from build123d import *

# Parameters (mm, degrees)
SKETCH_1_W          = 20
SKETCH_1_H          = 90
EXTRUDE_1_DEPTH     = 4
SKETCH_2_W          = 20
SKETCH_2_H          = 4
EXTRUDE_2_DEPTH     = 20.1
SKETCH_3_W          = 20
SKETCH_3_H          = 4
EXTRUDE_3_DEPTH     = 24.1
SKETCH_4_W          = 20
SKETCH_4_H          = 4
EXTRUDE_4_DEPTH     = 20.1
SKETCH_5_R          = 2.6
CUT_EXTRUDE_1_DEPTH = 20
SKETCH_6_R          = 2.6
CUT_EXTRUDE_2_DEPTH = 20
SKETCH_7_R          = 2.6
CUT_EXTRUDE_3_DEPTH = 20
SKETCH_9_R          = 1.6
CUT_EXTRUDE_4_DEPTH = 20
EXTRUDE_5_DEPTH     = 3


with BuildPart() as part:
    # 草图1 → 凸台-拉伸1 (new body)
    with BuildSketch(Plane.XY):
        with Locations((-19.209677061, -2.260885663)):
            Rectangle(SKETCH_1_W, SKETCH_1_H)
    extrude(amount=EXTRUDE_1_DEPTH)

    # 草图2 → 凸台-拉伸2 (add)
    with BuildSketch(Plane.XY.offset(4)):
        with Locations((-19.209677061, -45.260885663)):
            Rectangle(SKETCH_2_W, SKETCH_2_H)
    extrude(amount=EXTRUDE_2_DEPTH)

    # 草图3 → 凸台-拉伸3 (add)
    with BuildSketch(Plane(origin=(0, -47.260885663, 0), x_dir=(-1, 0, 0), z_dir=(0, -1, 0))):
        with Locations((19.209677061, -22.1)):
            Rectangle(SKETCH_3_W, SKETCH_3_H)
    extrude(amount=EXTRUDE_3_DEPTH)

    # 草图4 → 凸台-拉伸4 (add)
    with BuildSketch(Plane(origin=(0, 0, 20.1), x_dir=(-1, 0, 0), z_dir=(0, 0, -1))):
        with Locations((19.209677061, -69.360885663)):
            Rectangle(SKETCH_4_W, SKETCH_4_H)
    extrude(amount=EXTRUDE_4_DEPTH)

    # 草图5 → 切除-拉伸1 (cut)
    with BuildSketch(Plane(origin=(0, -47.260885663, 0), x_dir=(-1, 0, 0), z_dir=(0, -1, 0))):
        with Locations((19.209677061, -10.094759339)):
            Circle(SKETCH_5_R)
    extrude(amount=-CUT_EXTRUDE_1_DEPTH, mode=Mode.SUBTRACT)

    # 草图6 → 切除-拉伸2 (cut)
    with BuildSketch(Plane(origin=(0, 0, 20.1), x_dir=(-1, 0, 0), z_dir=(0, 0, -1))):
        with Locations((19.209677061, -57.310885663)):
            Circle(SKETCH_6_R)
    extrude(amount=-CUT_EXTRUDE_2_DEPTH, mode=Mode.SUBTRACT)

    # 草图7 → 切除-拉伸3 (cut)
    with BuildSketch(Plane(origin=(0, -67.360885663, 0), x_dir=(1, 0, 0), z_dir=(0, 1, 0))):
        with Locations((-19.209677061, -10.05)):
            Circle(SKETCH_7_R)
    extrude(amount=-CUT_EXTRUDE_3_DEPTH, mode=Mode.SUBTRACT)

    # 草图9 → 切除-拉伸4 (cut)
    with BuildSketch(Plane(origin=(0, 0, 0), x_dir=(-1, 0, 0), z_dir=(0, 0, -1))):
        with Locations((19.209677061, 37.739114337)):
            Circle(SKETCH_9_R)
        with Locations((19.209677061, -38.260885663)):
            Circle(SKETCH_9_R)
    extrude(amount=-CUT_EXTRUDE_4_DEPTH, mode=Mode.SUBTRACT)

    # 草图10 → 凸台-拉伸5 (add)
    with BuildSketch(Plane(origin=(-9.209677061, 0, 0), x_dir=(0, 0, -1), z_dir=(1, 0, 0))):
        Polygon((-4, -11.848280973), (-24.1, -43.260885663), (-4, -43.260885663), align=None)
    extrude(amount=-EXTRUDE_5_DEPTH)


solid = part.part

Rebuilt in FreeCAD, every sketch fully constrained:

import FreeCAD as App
import Part
import Sketcher
Q = App.Units.Quantity


def add_polygon(sketch, points):
    """Adds a closed chain of lines whose ends are joined by coincident constraints."""
    first, n = sketch.GeometryCount, len(points)
    for a, b in zip(points, points[1:] + points[:1]):
        sketch.addGeometry(Part.LineSegment(App.Vector(*a, 0), App.Vector(*b, 0)), False)
    for i in range(n):
        sketch.addConstraint(Sketcher.Constraint("Coincident", first + i, 2, first + (i + 1) % n, 1))

doc = App.newDocument("Part")
params = doc.addObject("Spreadsheet::Sheet", "Params")
for row, (alias, value) in enumerate([
    ("sketch1_width", "20 mm"),
    ("sketch1_height", "90 mm"),
    ("pad1_length", "4 mm"),
    ("sketch2_width", "20 mm"),
    ("sketch2_height", "4 mm"),
    ("pad2_length", "20.1 mm"),
    ("sketch3_width", "20 mm"),
    ("sketch3_height", "4 mm"),
    ("pad3_length", "24.1 mm"),
    ("sketch4_width", "20 mm"),
    ("sketch4_height", "4 mm"),
    ("pad4_length", "20.1 mm"),
    ("sketch5_diameter", "5.2 mm"),
    ("pocket1_length", "20 mm"),
    ("sketch6_diameter", "5.2 mm"),
    ("pocket2_length", "20 mm"),
    ("sketch7_diameter", "5.2 mm"),
    ("pocket3_length", "20 mm"),
    ("sketch8_diameter", "3.2 mm"),
    ("pocket4_length", "20 mm"),
    ("sketch9_height", "20.1 mm"),
    ("pad5_length", "3 mm"),
], start=1):
    params.set(f"A{row}", alias)
    params.set(f"B{row}", "=" + value)
    params.setAlias(f"B{row}", alias)

body = doc.addObject("PartDesign::Body", "Body")

sketch1 = body.newObject("Sketcher::SketchObject", "Sketch")
sketch1.AttachmentSupport = (doc.getObject("XY_Plane"), [""])
sketch1.MapMode = "FlatFace"
add_polygon(sketch1, [(-29.209677, 42.739114), (-29.209677, -47.260886), (-9.209677, -47.260886), (-9.209677, 42.739114)])
sketch1.addConstraint(Sketcher.Constraint("Vertical", 0))
sketch1.addConstraint(Sketcher.Constraint("Horizontal", 1))
sketch1.addConstraint(Sketcher.Constraint("Vertical", 2))
sketch1.addConstraint(Sketcher.Constraint("Horizontal", 3))
sketch1.addConstraint(Sketcher.Constraint("DistanceX", 1, 1, 1, 2, Q("20 mm")))
sketch1.addConstraint(Sketcher.Constraint("DistanceY", 0, 2, 0, 1, Q("90 mm")))
sketch1.addConstraint(Sketcher.Constraint("DistanceX", 0, 2, -1, 1, Q("29.209677 mm")))
sketch1.addConstraint(Sketcher.Constraint("DistanceY", 0, 2, -1, 1, Q("47.260886 mm")))
sketch1.setExpression("Constraints[8]", "Params.sketch1_width")
sketch1.setExpression("Constraints[9]", "Params.sketch1_height")
pad1 = body.newObject("PartDesign::Pad", "Pad")
pad1.Profile = sketch1
pad1.setExpression("Length", "Params.pad1_length")

sketch2 = body.newObject("Sketcher::SketchObject", "Sketch001")
sketch2.AttachmentSupport = (doc.getObject("XY_Plane"), [""])
sketch2.MapMode = "FlatFace"
sketch2.AttachmentOffset = App.Placement(App.Vector(0, 0, 4), App.Rotation())
add_polygon(sketch2, [(-29.209677, -43.260886), (-29.209677, -47.260886), (-9.209677, -47.260886), (-9.209677, -43.260886)])
sketch2.addConstraint(Sketcher.Constraint("Vertical", 0))
sketch2.addConstraint(Sketcher.Constraint("Horizontal", 1))
sketch2.addConstraint(Sketcher.Constraint("Vertical", 2))
sketch2.addConstraint(Sketcher.Constraint("Horizontal", 3))
sketch2.addConstraint(Sketcher.Constraint("DistanceX", 1, 1, 1, 2, Q("20 mm")))
sketch2.addConstraint(Sketcher.Constraint("DistanceY", 0, 2, 0, 1, Q("4 mm")))
sketch2.addConstraint(Sketcher.Constraint("DistanceX", 0, 2, -1, 1, Q("29.209677 mm")))
sketch2.addConstraint(Sketcher.Constraint("DistanceY", 0, 2, -1, 1, Q("47.260886 mm")))
sketch2.setExpression("Constraints[8]", "Params.sketch2_width")
sketch2.setExpression("Constraints[9]", "Params.sketch2_height")
pad2 = body.newObject("PartDesign::Pad", "Pad001")
pad2.Profile = sketch2
pad2.setExpression("Length", "Params.pad2_length")

sketch3 = body.newObject("Sketcher::SketchObject", "Sketch002")
sketch3.AttachmentSupport = (doc.getObject("XZ_Plane"), [""])
sketch3.MapMode = "FlatFace"
sketch3.AttachmentOffset = App.Placement(App.Vector(0, 0, 47.260886), App.Rotation())
add_polygon(sketch3, [(-9.209677, 20.1), (-9.209677, 24.1), (-29.209677, 24.1), (-29.209677, 20.1)])
sketch3.addConstraint(Sketcher.Constraint("Vertical", 0))
sketch3.addConstraint(Sketcher.Constraint("Horizontal", 1))
sketch3.addConstraint(Sketcher.Constraint("Vertical", 2))
sketch3.addConstraint(Sketcher.Constraint("Horizontal", 3))
sketch3.addConstraint(Sketcher.Constraint("DistanceX", 1, 2, 1, 1, Q("20 mm")))
sketch3.addConstraint(Sketcher.Constraint("DistanceY", 0, 1, 0, 2, Q("4 mm")))
sketch3.addConstraint(Sketcher.Constraint("DistanceY", -1, 1, 0, 2, Q("24.1 mm")))
sketch3.addConstraint(Sketcher.Constraint("DistanceX", 0, 2, -1, 1, Q("9.209677 mm")))
sketch3.setExpression("Constraints[8]", "Params.sketch3_width")
sketch3.setExpression("Constraints[9]", "Params.sketch3_height")
pad3 = body.newObject("PartDesign::Pad", "Pad002")
pad3.Profile = sketch3
pad3.setExpression("Length", "Params.pad3_length")

sketch4 = body.newObject("Sketcher::SketchObject", "Sketch003")
sketch4.AttachmentSupport = (doc.getObject("XY_Plane"), [""])
sketch4.MapMode = "FlatFace"
sketch4.AttachmentOffset = App.Placement(App.Vector(0, 0, 20.1), App.Rotation())
add_polygon(sketch4, [(-9.209677, -67.360886), (-9.209677, -71.360886), (-29.209677, -71.360886), (-29.209677, -67.360886)])
sketch4.addConstraint(Sketcher.Constraint("Vertical", 0))
sketch4.addConstraint(Sketcher.Constraint("Horizontal", 1))
sketch4.addConstraint(Sketcher.Constraint("Vertical", 2))
sketch4.addConstraint(Sketcher.Constraint("Horizontal", 3))
sketch4.addConstraint(Sketcher.Constraint("DistanceX", 1, 2, 1, 1, Q("20 mm")))
sketch4.addConstraint(Sketcher.Constraint("DistanceY", 0, 2, 0, 1, Q("4 mm")))
sketch4.addConstraint(Sketcher.Constraint("DistanceX", 0, 2, -1, 1, Q("9.209677 mm")))
sketch4.addConstraint(Sketcher.Constraint("DistanceY", 0, 2, -1, 1, Q("71.360886 mm")))
sketch4.setExpression("Constraints[8]", "Params.sketch4_width")
sketch4.setExpression("Constraints[9]", "Params.sketch4_height")
pad4 = body.newObject("PartDesign::Pad", "Pad003")
pad4.Profile = sketch4
pad4.setExpression("Length", "Params.pad4_length")
pad4.Reversed = True

sketch5 = body.newObject("Sketcher::SketchObject", "Sketch004")
sketch5.AttachmentSupport = (doc.getObject("XZ_Plane"), [""])
sketch5.MapMode = "FlatFace"
sketch5.AttachmentOffset = App.Placement(App.Vector(0, 0, 47.260886), App.Rotation())
sketch5.addGeometry(Part.Circle(App.Vector(-19.209677, 10.094759, 0), App.Vector(0, 0, 1), 2.6), False)
sketch5.addConstraint(Sketcher.Constraint("Diameter", 0, Q("5.2 mm")))
sketch5.addConstraint(Sketcher.Constraint("DistanceY", -1, 1, 0, 3, Q("10.094759 mm")))
sketch5.addConstraint(Sketcher.Constraint("DistanceX", 0, 3, -1, 1, Q("19.209677 mm")))
sketch5.setExpression("Constraints[0]", "Params.sketch5_diameter")
pocket1 = body.newObject("PartDesign::Pocket", "Pocket")
pocket1.Profile = sketch5
pocket1.setExpression("Length", "Params.pocket1_length")

sketch6 = body.newObject("Sketcher::SketchObject", "Sketch005")
sketch6.AttachmentSupport = (doc.getObject("XY_Plane"), [""])
sketch6.MapMode = "FlatFace"
sketch6.AttachmentOffset = App.Placement(App.Vector(0, 0, 20.1), App.Rotation())
sketch6.addGeometry(Part.Circle(App.Vector(-19.209677, -57.310886, 0), App.Vector(0, 0, 1), 2.6), False)
sketch6.addConstraint(Sketcher.Constraint("Diameter", 0, Q("5.2 mm")))
sketch6.addConstraint(Sketcher.Constraint("DistanceX", 0, 3, -1, 1, Q("19.209677 mm")))
sketch6.addConstraint(Sketcher.Constraint("DistanceY", 0, 3, -1, 1, Q("57.310886 mm")))
sketch6.setExpression("Constraints[0]", "Params.sketch6_diameter")
pocket2 = body.newObject("PartDesign::Pocket", "Pocket001")
pocket2.Profile = sketch6
pocket2.setExpression("Length", "Params.pocket2_length")
pocket2.Reversed = True

sketch7 = body.newObject("Sketcher::SketchObject", "Sketch006")
sketch7.AttachmentSupport = (doc.getObject("XZ_Plane"), [""])
sketch7.MapMode = "FlatFace"
sketch7.AttachmentOffset = App.Placement(App.Vector(0, 0, 67.360886), App.Rotation())
sketch7.addGeometry(Part.Circle(App.Vector(-19.209677, 10.05, 0), App.Vector(0, 0, 1), 2.6), False)
sketch7.addConstraint(Sketcher.Constraint("Diameter", 0, Q("5.2 mm")))
sketch7.addConstraint(Sketcher.Constraint("DistanceY", -1, 1, 0, 3, Q("10.05 mm")))
sketch7.addConstraint(Sketcher.Constraint("DistanceX", 0, 3, -1, 1, Q("19.209677 mm")))
sketch7.setExpression("Constraints[0]", "Params.sketch7_diameter")
pocket3 = body.newObject("PartDesign::Pocket", "Pocket002")
pocket3.Profile = sketch7
pocket3.setExpression("Length", "Params.pocket3_length")
pocket3.Reversed = True

sketch8 = body.newObject("Sketcher::SketchObject", "Sketch007")
sketch8.AttachmentSupport = (doc.getObject("XY_Plane"), [""])
sketch8.MapMode = "FlatFace"
sketch8.addGeometry(Part.Circle(App.Vector(-19.209677, 37.739114, 0), App.Vector(0, 0, 1), 1.6), False)
sketch8.addGeometry(Part.Circle(App.Vector(-19.209677, -38.260886, 0), App.Vector(0, 0, 1), 1.6), False)
sketch8.addConstraint(Sketcher.Constraint("Equal", 0, 1))
sketch8.addConstraint(Sketcher.Constraint("Vertical", 0, 3, 1, 3))
sketch8.addConstraint(Sketcher.Constraint("Diameter", 0, Q("3.2 mm")))
sketch8.addConstraint(Sketcher.Constraint("DistanceY", 1, 3, 0, 3, Q("76 mm")))
sketch8.addConstraint(Sketcher.Constraint("DistanceX", 0, 3, -1, 1, Q("19.209677 mm")))
sketch8.addConstraint(Sketcher.Constraint("DistanceY", -1, 1, 0, 3, Q("37.739114 mm")))
sketch8.setExpression("Constraints[2]", "Params.sketch8_diameter")
pocket4 = body.newObject("PartDesign::Pocket", "Pocket003")
pocket4.Profile = sketch8
pocket4.setExpression("Length", "Params.pocket4_length")
pocket4.Reversed = True

sketch9 = body.newObject("Sketcher::SketchObject", "Sketch008")
sketch9.AttachmentSupport = (doc.getObject("YZ_Plane"), [""])
sketch9.MapMode = "FlatFace"
sketch9.AttachmentOffset = App.Placement(App.Vector(0, 0, -9.209677), App.Rotation())
add_polygon(sketch9, [(-11.848281, 4), (-43.260886, 24.1), (-43.260886, 4)])
sketch9.addConstraint(Sketcher.Constraint("Vertical", 1))
sketch9.addConstraint(Sketcher.Constraint("Horizontal", 2))
sketch9.addConstraint(Sketcher.Constraint("DistanceY", 1, 2, 1, 1, Q("20.1 mm")))
sketch9.addConstraint(Sketcher.Constraint("DistanceY", -1, 1, 1, 2, Q("4 mm")))
sketch9.addConstraint(Sketcher.Constraint("Distance", 0, Q("37.292918 mm")))
sketch9.addConstraint(Sketcher.Constraint("DistanceX", 2, 2, -1, 1, Q("11.848281 mm")))
sketch9.setExpression("Constraints[5]", "Params.sketch9_height")
pad5 = body.newObject("PartDesign::Pad", "Pad004")
pad5.Profile = sketch9
pad5.setExpression("Length", "Params.pad5_length")
pad5.Reversed = True

doc.recompute()
